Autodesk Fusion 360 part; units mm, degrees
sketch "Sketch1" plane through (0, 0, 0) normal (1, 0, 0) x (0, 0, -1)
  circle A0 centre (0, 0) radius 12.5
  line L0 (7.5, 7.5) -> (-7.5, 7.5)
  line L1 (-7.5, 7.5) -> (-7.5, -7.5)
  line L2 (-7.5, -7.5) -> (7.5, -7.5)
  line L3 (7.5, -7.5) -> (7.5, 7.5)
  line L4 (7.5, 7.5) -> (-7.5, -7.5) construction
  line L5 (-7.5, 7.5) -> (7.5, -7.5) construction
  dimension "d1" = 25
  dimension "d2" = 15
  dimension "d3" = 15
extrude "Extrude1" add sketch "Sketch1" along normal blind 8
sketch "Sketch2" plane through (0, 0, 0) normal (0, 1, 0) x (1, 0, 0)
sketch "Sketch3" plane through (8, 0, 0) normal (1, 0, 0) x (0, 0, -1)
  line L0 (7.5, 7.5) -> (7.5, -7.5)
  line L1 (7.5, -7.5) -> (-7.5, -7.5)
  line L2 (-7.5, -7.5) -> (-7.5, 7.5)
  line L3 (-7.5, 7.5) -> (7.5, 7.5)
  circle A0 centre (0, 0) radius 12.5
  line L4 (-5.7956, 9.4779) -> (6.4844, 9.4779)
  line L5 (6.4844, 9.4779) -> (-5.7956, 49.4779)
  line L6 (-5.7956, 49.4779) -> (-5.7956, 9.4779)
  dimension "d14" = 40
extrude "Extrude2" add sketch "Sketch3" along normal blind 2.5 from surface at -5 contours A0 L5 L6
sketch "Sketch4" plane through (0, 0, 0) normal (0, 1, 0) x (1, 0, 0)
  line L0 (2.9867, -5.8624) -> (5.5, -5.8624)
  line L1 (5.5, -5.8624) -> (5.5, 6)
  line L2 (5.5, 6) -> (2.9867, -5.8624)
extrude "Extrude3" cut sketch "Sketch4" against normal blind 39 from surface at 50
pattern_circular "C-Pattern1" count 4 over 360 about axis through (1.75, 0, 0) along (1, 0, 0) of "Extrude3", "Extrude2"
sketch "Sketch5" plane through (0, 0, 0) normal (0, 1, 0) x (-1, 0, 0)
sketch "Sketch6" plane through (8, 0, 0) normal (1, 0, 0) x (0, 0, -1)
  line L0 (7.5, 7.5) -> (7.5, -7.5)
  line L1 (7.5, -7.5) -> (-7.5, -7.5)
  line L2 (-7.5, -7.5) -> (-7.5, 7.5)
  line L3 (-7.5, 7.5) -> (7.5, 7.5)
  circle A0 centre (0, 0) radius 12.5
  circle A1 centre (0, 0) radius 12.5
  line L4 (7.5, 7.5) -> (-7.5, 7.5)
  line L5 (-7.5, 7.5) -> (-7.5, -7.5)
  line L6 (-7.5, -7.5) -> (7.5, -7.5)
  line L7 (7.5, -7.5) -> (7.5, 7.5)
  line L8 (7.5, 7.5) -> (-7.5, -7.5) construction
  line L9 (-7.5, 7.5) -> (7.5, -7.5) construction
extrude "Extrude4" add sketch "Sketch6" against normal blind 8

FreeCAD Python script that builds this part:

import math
import FreeCAD as App
import Part
import Sketcher

V = App.Vector
Q = App.Units.Quantity


def add_polygon(sketch, points):
    """Adds a closed chain of lines whose ends are joined by coincident constraints."""
    first, n = sketch.GeometryCount, len(points)
    for a, b in zip(points, points[1:] + points[:1]):
        sketch.addGeometry(Part.LineSegment(App.Vector(*a, 0), App.Vector(*b, 0)), False)
    for i in range(n):
        sketch.addConstraint(Sketcher.Constraint("Coincident", first + i, 2, first + (i + 1) % n, 1))

doc = App.newDocument("Part")
params = doc.addObject("Spreadsheet::Sheet", "Params")
for row, (alias, value) in enumerate([
    ("sketch1_diameter", "25 mm"),
    ("sketch1_width", "15 mm"),
    ("pad1_length", "8 mm"),
    ("sketch2_radius", "12.5 mm"),
    ("pad2_length", "2.5 mm"),
    ("pocket1_length", "39 mm"),
    ("sketch4_diameter", "25 mm"),
    ("sketch4_width", "15 mm"),
    ("pad3_length", "8 mm"),
], start=1):
    params.set(f"A{row}", alias)
    params.set(f"B{row}", "=" + value)
    params.setAlias(f"B{row}", alias)

body = doc.addObject("PartDesign::Body", "Body")

# Sketch on YZ plane
sketch1 = doc.addObject("Sketcher::SketchObject", "Sketch")
body.addObject(sketch1)
sketch1.AttachmentSupport = (doc.YZ_Plane, [""])
sketch1.MapMode = "FlatFace"
sketch1.addGeometry(Part.Circle(V(0, 0, 0), V(0, 0, 1), 12), False)  # 0
add_polygon(sketch1, [(8, 8), (8, -8), (-8, -8), (-8, 8)])  # lines 1-4
sketch1.addConstraint(Sketcher.Constraint("Vertical", 1))
sketch1.addConstraint(Sketcher.Constraint("Horizontal", 2))
sketch1.addConstraint(Sketcher.Constraint("Vertical", 3))
sketch1.addConstraint(Sketcher.Constraint("Horizontal", 4))
sketch1.addConstraint(Sketcher.Constraint("Coincident", 0, 3, -1, 1))
sketch1.addConstraint(Sketcher.Constraint("Symmetric", 1, 2, 3, 2, -1, 1))
sketch1.addConstraint(Sketcher.Constraint("Equal", 4, 1))
sketch1.addConstraint(Sketcher.Constraint("Diameter", 0, Q("25 mm")))
sketch1.addConstraint(Sketcher.Constraint("DistanceX", 2, 2, 2, 1, Q("15 mm")))
sketch1.setExpression("Constraints[11]", "Params.sketch1_diameter")
sketch1.setExpression("Constraints[12]", "Params.sketch1_width")
pad1 = doc.addObject("PartDesign::Pad", "Pad")
body.addObject(pad1)
pad1.Profile = sketch1
pad1.setExpression("Length", "Params.pad1_length")

# Sketch on YZ plane
sketch2 = doc.addObject("Sketcher::SketchObject", "Sketch001")
body.addObject(sketch2)
sketch2.AttachmentSupport = (doc.YZ_Plane, [""])
sketch2.MapMode = "FlatFace"
sketch2.AttachmentOffset = App.Placement(V(0, 0, 3), App.Rotation())
sketch2.addGeometry(Part.ArcOfCircle(Part.Circle(V(0, 0, 0), V(0, 0, 1), 12), math.radians(-29), math.radians(28)), False)
sketch2.addGeometry(Part.LineSegment(V(11, -6, 0), V(49, 6, 0)), False)
sketch2.addGeometry(Part.LineSegment(V(49, 6, 0), V(11, 6, 0)), False)
sketch2.addConstraint(Sketcher.Constraint("Coincident", 0, 1, 1, 1))
sketch2.addConstraint(Sketcher.Constraint("Coincident", 1, 2, 2, 1))
sketch2.addConstraint(Sketcher.Constraint("Coincident", 2, 2, 0, 2))
sketch2.addConstraint(Sketcher.Constraint("Horizontal", 2))
sketch2.addConstraint(Sketcher.Constraint("Coincident", 0, 3, -1, 1))
sketch2.addConstraint(Sketcher.Constraint("Radius", 0, Q("12.5 mm")))
sketch2.addConstraint(Sketcher.Constraint("Distance", 1, Q("40.305 mm")))
sketch2.addConstraint(Sketcher.Constraint("DistanceX", 2, 2, 2, 1, Q("38.4027 mm")))
sketch2.addConstraint(Sketcher.Constraint("DistanceX", -1, 1, 1, 2, Q("49.478 mm")))
sketch2.setExpression("Constraints[5]", "Params.sketch2_radius")
pad2 = doc.addObject("PartDesign::Pad", "Pad001")
body.addObject(pad2)
pad2.Profile = sketch2
pad2.setExpression("Length", "Params.pad2_length")

# Sketch on XZ plane
sketch3 = doc.addObject("Sketcher::SketchObject", "Sketch002")
body.addObject(sketch3)
sketch3.AttachmentSupport = (doc.XZ_Plane, [""])
sketch3.MapMode = "FlatFace"
sketch3.AttachmentOffset = App.Placement(V(0, 0, -50), App.Rotation())
add_polygon(sketch3, [(5.5, -6), (3, 5.9), (5.5, 5.9)])  # lines 0-2
sketch3.addConstraint(Sketcher.Constraint("Horizontal", 1))
sketch3.addConstraint(Sketcher.Constraint("Vertical", 2))
sketch3.addConstraint(Sketcher.Constraint("DistanceY", 2, 2, -1, 1, Q("6 mm")))
sketch3.addConstraint(Sketcher.Constraint("DistanceX", -1, 1, 1, 2, Q("5.5 mm")))
sketch3.addConstraint(Sketcher.Constraint("DistanceX", 1, 1, 1, 2, Q("2.5133 mm")))
sketch3.addConstraint(Sketcher.Constraint("DistanceY", 2, 2, 2, 1, Q("11.8624 mm")))
pocket1 = doc.addObject("PartDesign::Pocket", "Pocket")
body.addObject(pocket1)
pocket1.Profile = sketch3
pocket1.setExpression("Length", "Params.pocket1_length")
pocket1.Reversed = True
doc.recompute()

polarpattern = doc.addObject("PartDesign::PolarPattern", "PolarPattern")
body.addObject(polarpattern)
polarpattern.Originals = [pocket1, pad2]
polarpattern.Axis = (doc.X_Axis, [""])
polarpattern.Angle = 360
polarpattern.Occurrences = 4
body.Tip = polarpattern

# Sketch on YZ plane
sketch4 = doc.addObject("Sketcher::SketchObject", "Sketch003")
body.addObject(sketch4)
sketch4.AttachmentSupport = (doc.YZ_Plane, [""])
sketch4.MapMode = "FlatFace"
sketch4.AttachmentOffset = App.Placement(V(0, 0, 8), App.Rotation())
sketch4.addGeometry(Part.Circle(V(0, 0, 0), V(0, 0, 1), 12), False)  # 0
add_polygon(sketch4, [(8, 8), (8, -8), (-8, -8), (-8, 8)])  # lines 1-4
sketch4.addConstraint(Sketcher.Constraint("Vertical", 1))
sketch4.addConstraint(Sketcher.Constraint("Horizontal", 2))
sketch4.addConstraint(Sketcher.Constraint("Vertical", 3))
sketch4.addConstraint(Sketcher.Constraint("Horizontal", 4))
sketch4.addConstraint(Sketcher.Constraint("Coincident", 0, 3, -1, 1))
sketch4.addConstraint(Sketcher.Constraint("Symmetric", 1, 2, 3, 2, -1, 1))
sketch4.addConstraint(Sketcher.Constraint("Equal", 4, 1))
sketch4.addConstraint(Sketcher.Constraint("Diameter", 0, Q("25 mm")))
sketch4.addConstraint(Sketcher.Constraint("DistanceX", 2, 2, 2, 1, Q("15 mm")))
sketch4.setExpression("Constraints[11]", "Params.sketch4_diameter")
sketch4.setExpression("Constraints[12]", "Params.sketch4_width")
pad3 = doc.addObject("PartDesign::Pad", "Pad002")
body.addObject(pad3)
pad3.Profile = sketch4
pad3.setExpression("Length", "Params.pad3_length")
pad3.Reversed = True

doc.recompute()
